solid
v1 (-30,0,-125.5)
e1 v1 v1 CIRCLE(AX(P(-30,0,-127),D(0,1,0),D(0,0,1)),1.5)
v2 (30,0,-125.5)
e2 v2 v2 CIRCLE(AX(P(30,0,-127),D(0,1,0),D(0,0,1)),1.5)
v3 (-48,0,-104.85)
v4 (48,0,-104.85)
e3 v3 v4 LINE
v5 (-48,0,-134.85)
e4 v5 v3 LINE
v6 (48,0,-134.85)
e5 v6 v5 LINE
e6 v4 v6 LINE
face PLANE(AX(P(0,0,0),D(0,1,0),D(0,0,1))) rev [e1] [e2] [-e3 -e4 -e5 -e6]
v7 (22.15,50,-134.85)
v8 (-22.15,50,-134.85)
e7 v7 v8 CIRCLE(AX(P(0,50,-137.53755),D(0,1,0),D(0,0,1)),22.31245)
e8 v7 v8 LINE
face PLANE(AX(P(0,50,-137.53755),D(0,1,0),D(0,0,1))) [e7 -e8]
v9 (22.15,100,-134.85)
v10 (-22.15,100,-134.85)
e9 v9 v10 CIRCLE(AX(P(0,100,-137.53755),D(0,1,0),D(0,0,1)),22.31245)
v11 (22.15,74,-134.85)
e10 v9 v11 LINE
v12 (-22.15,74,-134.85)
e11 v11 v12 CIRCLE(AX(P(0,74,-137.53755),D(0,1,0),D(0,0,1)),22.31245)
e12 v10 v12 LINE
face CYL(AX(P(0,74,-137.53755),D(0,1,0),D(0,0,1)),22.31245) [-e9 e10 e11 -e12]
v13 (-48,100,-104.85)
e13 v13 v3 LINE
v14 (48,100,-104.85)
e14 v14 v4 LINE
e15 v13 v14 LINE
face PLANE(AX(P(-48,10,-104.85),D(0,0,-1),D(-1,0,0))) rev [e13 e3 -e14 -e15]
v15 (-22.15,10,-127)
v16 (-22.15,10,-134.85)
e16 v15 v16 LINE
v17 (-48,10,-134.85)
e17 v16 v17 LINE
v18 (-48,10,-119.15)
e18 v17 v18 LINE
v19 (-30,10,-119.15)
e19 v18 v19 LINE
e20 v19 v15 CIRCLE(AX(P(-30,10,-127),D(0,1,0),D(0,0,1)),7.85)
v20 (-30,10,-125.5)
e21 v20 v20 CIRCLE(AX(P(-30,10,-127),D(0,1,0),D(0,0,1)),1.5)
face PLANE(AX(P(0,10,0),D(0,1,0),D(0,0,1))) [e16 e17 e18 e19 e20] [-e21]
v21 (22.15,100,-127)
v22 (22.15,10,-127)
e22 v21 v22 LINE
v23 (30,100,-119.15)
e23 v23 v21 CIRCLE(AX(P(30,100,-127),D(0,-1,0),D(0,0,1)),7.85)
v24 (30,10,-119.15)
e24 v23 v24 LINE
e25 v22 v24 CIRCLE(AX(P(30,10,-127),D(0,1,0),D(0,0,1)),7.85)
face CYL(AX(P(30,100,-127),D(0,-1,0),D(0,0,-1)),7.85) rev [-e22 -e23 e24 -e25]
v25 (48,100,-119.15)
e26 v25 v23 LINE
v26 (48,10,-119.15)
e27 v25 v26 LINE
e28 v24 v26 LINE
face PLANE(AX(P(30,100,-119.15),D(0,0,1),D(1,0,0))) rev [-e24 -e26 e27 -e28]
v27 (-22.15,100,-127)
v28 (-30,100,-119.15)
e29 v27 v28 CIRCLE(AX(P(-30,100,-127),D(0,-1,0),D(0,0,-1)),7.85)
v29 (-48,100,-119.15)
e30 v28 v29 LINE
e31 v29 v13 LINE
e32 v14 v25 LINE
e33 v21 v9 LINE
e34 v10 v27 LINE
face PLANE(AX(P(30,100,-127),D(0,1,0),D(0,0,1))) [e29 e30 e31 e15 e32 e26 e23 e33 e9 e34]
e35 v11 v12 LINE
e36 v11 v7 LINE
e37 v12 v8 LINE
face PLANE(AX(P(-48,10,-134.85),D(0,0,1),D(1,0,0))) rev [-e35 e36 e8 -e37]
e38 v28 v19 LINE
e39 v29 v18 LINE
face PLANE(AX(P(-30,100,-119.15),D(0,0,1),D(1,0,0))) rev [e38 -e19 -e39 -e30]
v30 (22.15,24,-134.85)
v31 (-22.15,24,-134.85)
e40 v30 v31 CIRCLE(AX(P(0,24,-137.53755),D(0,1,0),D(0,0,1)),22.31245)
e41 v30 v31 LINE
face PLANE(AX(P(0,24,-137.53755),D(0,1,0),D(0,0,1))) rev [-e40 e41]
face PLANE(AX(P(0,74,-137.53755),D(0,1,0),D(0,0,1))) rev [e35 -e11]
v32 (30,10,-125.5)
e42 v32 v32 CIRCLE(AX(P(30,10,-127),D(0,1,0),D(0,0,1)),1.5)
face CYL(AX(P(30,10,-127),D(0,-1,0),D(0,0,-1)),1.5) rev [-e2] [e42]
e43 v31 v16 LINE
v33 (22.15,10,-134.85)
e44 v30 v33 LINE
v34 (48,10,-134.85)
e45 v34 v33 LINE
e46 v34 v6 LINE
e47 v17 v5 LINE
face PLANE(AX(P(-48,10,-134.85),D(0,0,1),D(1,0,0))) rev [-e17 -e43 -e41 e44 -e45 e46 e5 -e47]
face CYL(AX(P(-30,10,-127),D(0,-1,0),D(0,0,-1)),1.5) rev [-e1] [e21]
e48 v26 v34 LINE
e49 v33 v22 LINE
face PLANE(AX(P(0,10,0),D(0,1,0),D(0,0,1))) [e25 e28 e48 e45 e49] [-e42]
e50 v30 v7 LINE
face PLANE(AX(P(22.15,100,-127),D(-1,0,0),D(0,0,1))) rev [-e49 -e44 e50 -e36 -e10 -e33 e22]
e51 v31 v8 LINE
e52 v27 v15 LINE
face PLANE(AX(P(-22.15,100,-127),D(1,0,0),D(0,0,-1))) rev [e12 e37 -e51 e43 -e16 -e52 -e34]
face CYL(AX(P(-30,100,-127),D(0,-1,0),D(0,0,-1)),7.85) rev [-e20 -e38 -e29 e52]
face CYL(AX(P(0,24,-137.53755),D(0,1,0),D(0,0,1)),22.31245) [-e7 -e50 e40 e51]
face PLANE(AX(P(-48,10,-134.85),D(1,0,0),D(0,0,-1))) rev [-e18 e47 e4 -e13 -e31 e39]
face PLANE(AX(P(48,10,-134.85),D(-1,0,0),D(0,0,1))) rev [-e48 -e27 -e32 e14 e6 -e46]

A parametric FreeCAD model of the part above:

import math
import FreeCAD as App
import Part
import Sketcher


def add_polygon(sketch, points):
    """Adds a closed chain of lines whose ends are joined by coincident constraints."""
    first, n = sketch.GeometryCount, len(points)
    for a, b in zip(points, points[1:] + points[:1]):
        sketch.addGeometry(Part.LineSegment(App.Vector(*a, 0), App.Vector(*b, 0)), False)
    for i in range(n):
        sketch.addConstraint(Sketcher.Constraint("Coincident", first + i, 2, first + (i + 1) % n, 1))

doc = App.newDocument("Part")
params = doc.addObject("Spreadsheet::Sheet", "Params")
for row, (alias, value) in enumerate([
    ("sketch1_diameter", "3 mm"),
    ("sketch1_width", "96 mm"),
    ("sketch1_height", "30 mm"),
    ("pad1_length", "10 mm"),
    ("sketch2_width", "18 mm"),
    ("sketch2_width2", "96 mm"),
    ("sketch2_radius", "7.85 mm"),
    ("sketch2_height", "14.3 mm"),
    ("pad2_length", "100 mm"),
    ("sketch3_height", "30 mm"),
    ("sketch3_width", "44.3 mm"),
    ("pad3_length", "26 mm"),
    ("linearpattern_pitch", "50 mm"),
], start=1):
    params.set(f"A{row}", alias)
    params.set(f"B{row}", "=" + value)
    params.setAlias(f"B{row}", alias)

body = doc.addObject("PartDesign::Body", "Body")

# Sketch on XZ plane
sketch1 = body.newObject("Sketcher::SketchObject", "Sketch")
sketch1.AttachmentSupport = (doc.getObject("XZ_Plane"), [""])
sketch1.MapMode = "FlatFace"
add_polygon(sketch1, [(-48, -134.8), (-48, -104.8), (48, -104.8), (48, -134.8)])  # lines 0-3
sketch1.addGeometry(Part.Circle(App.Vector(-30, -127, 0), App.Vector(0, 0, 1), 1.5), False)  # 4
sketch1.addGeometry(Part.Circle(App.Vector(30, -127, 0), App.Vector(0, 0, 1), 1.5), False)  # 5
sketch1.addConstraint([
    Sketcher.Constraint("Vertical", 0),
    Sketcher.Constraint("Horizontal", 1),
    Sketcher.Constraint("Vertical", 2),
    Sketcher.Constraint("Horizontal", 3),
    Sketcher.Constraint("Equal", 4, 5),
    Sketcher.Constraint("Symmetric", 4, 3, 5, 3, -2),
    Sketcher.Constraint("Diameter", 4, 3.0),
    Sketcher.Constraint("DistanceX", 1, 1, 1, 2, 96.0),
    Sketcher.Constraint("DistanceY", 0, 1, 0, 2, 30.0),
    Sketcher.Constraint("DistanceX", 4, 3, -1, 1, 30.0),
    Sketcher.Constraint("DistanceY", 4, 3, -1, 1, 127.0),
    Sketcher.Constraint("DistanceX", 0, 2, -1, 1, 48.0),
    Sketcher.Constraint("DistanceY", 0, 2, -1, 1, 104.85),
])
sketch1.setExpression("Constraints[10]", "Params.sketch1_diameter")
sketch1.setExpression("Constraints[11]", "Params.sketch1_width")
sketch1.setExpression("Constraints[12]", "Params.sketch1_height")
pad1 = body.newObject("PartDesign::Pad", "Pad")
pad1.Profile = sketch1
pad1.setExpression("Length", "Params.pad1_length")
pad1.Reversed = True

# Sketch on XZ plane
sketch2 = body.newObject("Sketcher::SketchObject", "Sketch001")
sketch2.AttachmentSupport = (doc.getObject("XZ_Plane"), [""])
sketch2.MapMode = "FlatFace"
sketch2.addGeometry([
    Part.LineSegment(App.Vector(22, -135, 0), App.Vector(-22, -135, 0)),  # 0
    Part.LineSegment(App.Vector(-22, -135, 0), App.Vector(-22, -127, 0)),  # 1
    Part.ArcOfCircle(Part.Circle(App.Vector(-30, -127, 0), App.Vector(0, 0, 1), 8), math.radians(0), math.radians(90)),  # 2
    Part.LineSegment(App.Vector(-30, -119, 0), App.Vector(-48, -119, 0)),  # 3
    Part.LineSegment(App.Vector(-48, -119, 0), App.Vector(-48, -105, 0)),  # 4
    Part.LineSegment(App.Vector(-48, -105, 0), App.Vector(48, -105, 0)),  # 5
    Part.LineSegment(App.Vector(48, -105, 0), App.Vector(48, -119, 0)),  # 6
    Part.LineSegment(App.Vector(48, -119, 0), App.Vector(30, -119, 0)),  # 7
    Part.ArcOfCircle(Part.Circle(App.Vector(30, -127, 0), App.Vector(0, 0, 1), 8), math.radians(90), math.radians(180)),  # 8
    Part.LineSegment(App.Vector(22, -127, 0), App.Vector(22, -135, 0)),  # 9
], False)
sketch2.addConstraint([
    Sketcher.Constraint("Coincident", 0, 2, 1, 1),
    Sketcher.Constraint("Tangent", 1, 2, 2, 1),
    Sketcher.Constraint("Tangent", 2, 2, 3, 1),
    Sketcher.Constraint("Coincident", 3, 2, 4, 1),
    Sketcher.Constraint("Coincident", 4, 2, 5, 1),
    Sketcher.Constraint("Coincident", 5, 2, 6, 1),
    Sketcher.Constraint("Coincident", 6, 2, 7, 1),
    Sketcher.Constraint("Tangent", 7, 2, 8, 1),
    Sketcher.Constraint("Tangent", 8, 2, 9, 1),
    Sketcher.Constraint("Coincident", 9, 2, 0, 1),
    Sketcher.Constraint("Horizontal", 0),
    Sketcher.Constraint("Vertical", 1),
    Sketcher.Constraint("Horizontal", 3),
    Sketcher.Constraint("Vertical", 4),
    Sketcher.Constraint("Horizontal", 5),
    Sketcher.Constraint("Vertical", 6),
    Sketcher.Constraint("Horizontal", 7),
    Sketcher.Constraint("Vertical", 9),
    Sketcher.Constraint("Equal", 2, 8),
    Sketcher.Constraint("Symmetric", 2, 3, 8, 3, -2),
    Sketcher.Constraint("Equal", 3, 7),
    Sketcher.Constraint("DistanceX", 3, 2, 3, 1, 18.0),
    Sketcher.Constraint("DistanceX", 5, 1, 5, 2, 96.0),
    Sketcher.Constraint("Radius", 2, 7.85),
    Sketcher.Constraint("DistanceY", 4, 1, 4, 2, 14.3),
    Sketcher.Constraint("DistanceY", 2, 3, -1, 1, 127.0),
    Sketcher.Constraint("DistanceY", 0, 2, 4, 2, 30.0),
])
sketch2.setExpression("Constraints[21]", "Params.sketch2_width")
sketch2.setExpression("Constraints[22]", "Params.sketch2_width2")
sketch2.setExpression("Constraints[23]", "Params.sketch2_radius")
sketch2.setExpression("Constraints[24]", "Params.sketch2_height")
pad2 = body.newObject("PartDesign::Pad", "Pad001")
pad2.Profile = sketch2
pad2.setExpression("Length", "Params.pad2_length")
pad2.Reversed = True

# Sketch on XZ plane
sketch3 = body.newObject("Sketcher::SketchObject", "Sketch002")
sketch3.AttachmentSupport = (doc.getObject("XZ_Plane"), [""])
sketch3.MapMode = "FlatFace"
sketch3.AttachmentOffset = App.Placement(App.Vector(0, 0, -100), App.Rotation())
sketch3.addGeometry([
    Part.LineSegment(App.Vector(22, -105, 0), App.Vector(22, -135, 0)),
    Part.ArcOfCircle(Part.Circle(App.Vector(0, -138, 0), App.Vector(0, 0, 1), 22), math.radians(173), math.radians(367)),
    Part.LineSegment(App.Vector(-22, -135, 0), App.Vector(-22, -105, 0)),
    Part.LineSegment(App.Vector(-22, -105, 0), App.Vector(22, -105, 0)),
], False)
sketch3.addConstraint([
    Sketcher.Constraint("Coincident", 0, 2, 1, 2),
    Sketcher.Constraint("Coincident", 1, 1, 2, 1),
    Sketcher.Constraint("Coincident", 2, 2, 3, 1),
    Sketcher.Constraint("Coincident", 3, 2, 0, 1),
    Sketcher.Constraint("Vertical", 0),
    Sketcher.Constraint("Vertical", 2),
    Sketcher.Constraint("Horizontal", 3),
    Sketcher.Constraint("Symmetric", 0, 2, 1, 1, -2),
    Sketcher.Constraint("DistanceY", 0, 2, 0, 1, 30.0),
    Sketcher.Constraint("DistanceX", 3, 1, 3, 2, 44.3),
    Sketcher.Constraint("DistanceY", 0, 2, -1, 1, 134.85),
    Sketcher.Constraint("Radius", 1, 22.31245),
])
sketch3.setExpression("Constraints[8]", "Params.sketch3_height")
sketch3.setExpression("Constraints[9]", "Params.sketch3_width")
pad3 = body.newObject("PartDesign::Pad", "Pad002")
pad3.Profile = sketch3
pad3.setExpression("Length", "Params.pad3_length")
doc.recompute()

linearpattern = body.newObject("PartDesign::LinearPattern", "LinearPattern")
linearpattern.Originals = [pad3]
linearpattern.Direction = (doc.getObject("Y_Axis"), [""])
linearpattern.Mode = "offset"
linearpattern.setExpression("Offset", "Params.linearpattern_pitch")
linearpattern.Occurrences = 2
linearpattern.Reversed = True
body.Tip = linearpattern

doc.recompute()
